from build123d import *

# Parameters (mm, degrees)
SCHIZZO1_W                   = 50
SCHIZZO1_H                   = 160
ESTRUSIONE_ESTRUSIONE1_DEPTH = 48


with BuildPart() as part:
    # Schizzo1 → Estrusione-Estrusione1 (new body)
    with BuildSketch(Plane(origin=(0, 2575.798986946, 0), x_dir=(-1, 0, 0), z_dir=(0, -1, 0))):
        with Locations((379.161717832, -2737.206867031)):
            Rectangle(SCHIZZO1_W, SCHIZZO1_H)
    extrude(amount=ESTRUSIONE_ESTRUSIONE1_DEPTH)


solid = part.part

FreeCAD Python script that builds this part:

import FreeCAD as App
import Part
import Sketcher

V = App.Vector
Q = App.Units.Quantity

doc = App.newDocument("Part")
params = doc.addObject("Spreadsheet::Sheet", "Params")
for row, (alias, value) in enumerate([
    ("sketch1_width", "50 mm"),
    ("sketch1_height", "160 mm"),
    ("pad1_length", "48 mm"),
], start=1):
    params.set(f"A{row}", alias)
    params.set(f"B{row}", "=" + value)
    params.setAlias(f"B{row}", alias)

body = doc.addObject("PartDesign::Body", "Body")

sketch1 = body.newObject("Sketcher::SketchObject", "Sketch")
sketch1.AttachmentSupport = (doc.getObject("XZ_Plane"), [""])
sketch1.MapMode = "FlatFace"
sketch1.AttachmentOffset = App.Placement(V(0, 0, -2575.798987), App.Rotation())
sketch1.addGeometry([
    Part.LineSegment(V(-354.161718, 2657.206867, 0), V(-354.161718, 2817.206867, 0)),
    Part.LineSegment(V(-354.161718, 2817.206867, 0), V(-404.161718, 2817.206867, 0)),
    Part.LineSegment(V(-404.161718, 2817.206867, 0), V(-404.161718, 2657.206867, 0)),
    Part.LineSegment(V(-404.161718, 2657.206867, 0), V(-354.161718, 2657.206867, 0)),
], False)
sketch1.addConstraint([
    Sketcher.Constraint("Coincident", 0, 2, 1, 1),
    Sketcher.Constraint("Coincident", 1, 2, 2, 1),
    Sketcher.Constraint("Coincident", 2, 2, 3, 1),
    Sketcher.Constraint("Coincident", 3, 2, 0, 1),
    Sketcher.Constraint("Vertical", 0),
    Sketcher.Constraint("Horizontal", 1),
    Sketcher.Constraint("Vertical", 2),
    Sketcher.Constraint("Horizontal", 3),
    Sketcher.Constraint("DistanceX", 1, 2, 1, 1, Q("50 mm")),
    Sketcher.Constraint("DistanceY", 0, 1, 0, 2, Q("160 mm")),
    Sketcher.Constraint("DistanceX", 0, 2, -1, 1, Q("354.161718 mm")),
    Sketcher.Constraint("DistanceY", -1, 1, 0, 2, Q("2817.206867 mm")),
])
sketch1.setExpression("Constraints[8]", "Params.sketch1_width")
sketch1.setExpression("Constraints[9]", "Params.sketch1_height")
pad1 = body.newObject("PartDesign::Pad", "Pad")
pad1.Profile = sketch1
pad1.setExpression("Length", "Params.pad1_length")

doc.recompute()
